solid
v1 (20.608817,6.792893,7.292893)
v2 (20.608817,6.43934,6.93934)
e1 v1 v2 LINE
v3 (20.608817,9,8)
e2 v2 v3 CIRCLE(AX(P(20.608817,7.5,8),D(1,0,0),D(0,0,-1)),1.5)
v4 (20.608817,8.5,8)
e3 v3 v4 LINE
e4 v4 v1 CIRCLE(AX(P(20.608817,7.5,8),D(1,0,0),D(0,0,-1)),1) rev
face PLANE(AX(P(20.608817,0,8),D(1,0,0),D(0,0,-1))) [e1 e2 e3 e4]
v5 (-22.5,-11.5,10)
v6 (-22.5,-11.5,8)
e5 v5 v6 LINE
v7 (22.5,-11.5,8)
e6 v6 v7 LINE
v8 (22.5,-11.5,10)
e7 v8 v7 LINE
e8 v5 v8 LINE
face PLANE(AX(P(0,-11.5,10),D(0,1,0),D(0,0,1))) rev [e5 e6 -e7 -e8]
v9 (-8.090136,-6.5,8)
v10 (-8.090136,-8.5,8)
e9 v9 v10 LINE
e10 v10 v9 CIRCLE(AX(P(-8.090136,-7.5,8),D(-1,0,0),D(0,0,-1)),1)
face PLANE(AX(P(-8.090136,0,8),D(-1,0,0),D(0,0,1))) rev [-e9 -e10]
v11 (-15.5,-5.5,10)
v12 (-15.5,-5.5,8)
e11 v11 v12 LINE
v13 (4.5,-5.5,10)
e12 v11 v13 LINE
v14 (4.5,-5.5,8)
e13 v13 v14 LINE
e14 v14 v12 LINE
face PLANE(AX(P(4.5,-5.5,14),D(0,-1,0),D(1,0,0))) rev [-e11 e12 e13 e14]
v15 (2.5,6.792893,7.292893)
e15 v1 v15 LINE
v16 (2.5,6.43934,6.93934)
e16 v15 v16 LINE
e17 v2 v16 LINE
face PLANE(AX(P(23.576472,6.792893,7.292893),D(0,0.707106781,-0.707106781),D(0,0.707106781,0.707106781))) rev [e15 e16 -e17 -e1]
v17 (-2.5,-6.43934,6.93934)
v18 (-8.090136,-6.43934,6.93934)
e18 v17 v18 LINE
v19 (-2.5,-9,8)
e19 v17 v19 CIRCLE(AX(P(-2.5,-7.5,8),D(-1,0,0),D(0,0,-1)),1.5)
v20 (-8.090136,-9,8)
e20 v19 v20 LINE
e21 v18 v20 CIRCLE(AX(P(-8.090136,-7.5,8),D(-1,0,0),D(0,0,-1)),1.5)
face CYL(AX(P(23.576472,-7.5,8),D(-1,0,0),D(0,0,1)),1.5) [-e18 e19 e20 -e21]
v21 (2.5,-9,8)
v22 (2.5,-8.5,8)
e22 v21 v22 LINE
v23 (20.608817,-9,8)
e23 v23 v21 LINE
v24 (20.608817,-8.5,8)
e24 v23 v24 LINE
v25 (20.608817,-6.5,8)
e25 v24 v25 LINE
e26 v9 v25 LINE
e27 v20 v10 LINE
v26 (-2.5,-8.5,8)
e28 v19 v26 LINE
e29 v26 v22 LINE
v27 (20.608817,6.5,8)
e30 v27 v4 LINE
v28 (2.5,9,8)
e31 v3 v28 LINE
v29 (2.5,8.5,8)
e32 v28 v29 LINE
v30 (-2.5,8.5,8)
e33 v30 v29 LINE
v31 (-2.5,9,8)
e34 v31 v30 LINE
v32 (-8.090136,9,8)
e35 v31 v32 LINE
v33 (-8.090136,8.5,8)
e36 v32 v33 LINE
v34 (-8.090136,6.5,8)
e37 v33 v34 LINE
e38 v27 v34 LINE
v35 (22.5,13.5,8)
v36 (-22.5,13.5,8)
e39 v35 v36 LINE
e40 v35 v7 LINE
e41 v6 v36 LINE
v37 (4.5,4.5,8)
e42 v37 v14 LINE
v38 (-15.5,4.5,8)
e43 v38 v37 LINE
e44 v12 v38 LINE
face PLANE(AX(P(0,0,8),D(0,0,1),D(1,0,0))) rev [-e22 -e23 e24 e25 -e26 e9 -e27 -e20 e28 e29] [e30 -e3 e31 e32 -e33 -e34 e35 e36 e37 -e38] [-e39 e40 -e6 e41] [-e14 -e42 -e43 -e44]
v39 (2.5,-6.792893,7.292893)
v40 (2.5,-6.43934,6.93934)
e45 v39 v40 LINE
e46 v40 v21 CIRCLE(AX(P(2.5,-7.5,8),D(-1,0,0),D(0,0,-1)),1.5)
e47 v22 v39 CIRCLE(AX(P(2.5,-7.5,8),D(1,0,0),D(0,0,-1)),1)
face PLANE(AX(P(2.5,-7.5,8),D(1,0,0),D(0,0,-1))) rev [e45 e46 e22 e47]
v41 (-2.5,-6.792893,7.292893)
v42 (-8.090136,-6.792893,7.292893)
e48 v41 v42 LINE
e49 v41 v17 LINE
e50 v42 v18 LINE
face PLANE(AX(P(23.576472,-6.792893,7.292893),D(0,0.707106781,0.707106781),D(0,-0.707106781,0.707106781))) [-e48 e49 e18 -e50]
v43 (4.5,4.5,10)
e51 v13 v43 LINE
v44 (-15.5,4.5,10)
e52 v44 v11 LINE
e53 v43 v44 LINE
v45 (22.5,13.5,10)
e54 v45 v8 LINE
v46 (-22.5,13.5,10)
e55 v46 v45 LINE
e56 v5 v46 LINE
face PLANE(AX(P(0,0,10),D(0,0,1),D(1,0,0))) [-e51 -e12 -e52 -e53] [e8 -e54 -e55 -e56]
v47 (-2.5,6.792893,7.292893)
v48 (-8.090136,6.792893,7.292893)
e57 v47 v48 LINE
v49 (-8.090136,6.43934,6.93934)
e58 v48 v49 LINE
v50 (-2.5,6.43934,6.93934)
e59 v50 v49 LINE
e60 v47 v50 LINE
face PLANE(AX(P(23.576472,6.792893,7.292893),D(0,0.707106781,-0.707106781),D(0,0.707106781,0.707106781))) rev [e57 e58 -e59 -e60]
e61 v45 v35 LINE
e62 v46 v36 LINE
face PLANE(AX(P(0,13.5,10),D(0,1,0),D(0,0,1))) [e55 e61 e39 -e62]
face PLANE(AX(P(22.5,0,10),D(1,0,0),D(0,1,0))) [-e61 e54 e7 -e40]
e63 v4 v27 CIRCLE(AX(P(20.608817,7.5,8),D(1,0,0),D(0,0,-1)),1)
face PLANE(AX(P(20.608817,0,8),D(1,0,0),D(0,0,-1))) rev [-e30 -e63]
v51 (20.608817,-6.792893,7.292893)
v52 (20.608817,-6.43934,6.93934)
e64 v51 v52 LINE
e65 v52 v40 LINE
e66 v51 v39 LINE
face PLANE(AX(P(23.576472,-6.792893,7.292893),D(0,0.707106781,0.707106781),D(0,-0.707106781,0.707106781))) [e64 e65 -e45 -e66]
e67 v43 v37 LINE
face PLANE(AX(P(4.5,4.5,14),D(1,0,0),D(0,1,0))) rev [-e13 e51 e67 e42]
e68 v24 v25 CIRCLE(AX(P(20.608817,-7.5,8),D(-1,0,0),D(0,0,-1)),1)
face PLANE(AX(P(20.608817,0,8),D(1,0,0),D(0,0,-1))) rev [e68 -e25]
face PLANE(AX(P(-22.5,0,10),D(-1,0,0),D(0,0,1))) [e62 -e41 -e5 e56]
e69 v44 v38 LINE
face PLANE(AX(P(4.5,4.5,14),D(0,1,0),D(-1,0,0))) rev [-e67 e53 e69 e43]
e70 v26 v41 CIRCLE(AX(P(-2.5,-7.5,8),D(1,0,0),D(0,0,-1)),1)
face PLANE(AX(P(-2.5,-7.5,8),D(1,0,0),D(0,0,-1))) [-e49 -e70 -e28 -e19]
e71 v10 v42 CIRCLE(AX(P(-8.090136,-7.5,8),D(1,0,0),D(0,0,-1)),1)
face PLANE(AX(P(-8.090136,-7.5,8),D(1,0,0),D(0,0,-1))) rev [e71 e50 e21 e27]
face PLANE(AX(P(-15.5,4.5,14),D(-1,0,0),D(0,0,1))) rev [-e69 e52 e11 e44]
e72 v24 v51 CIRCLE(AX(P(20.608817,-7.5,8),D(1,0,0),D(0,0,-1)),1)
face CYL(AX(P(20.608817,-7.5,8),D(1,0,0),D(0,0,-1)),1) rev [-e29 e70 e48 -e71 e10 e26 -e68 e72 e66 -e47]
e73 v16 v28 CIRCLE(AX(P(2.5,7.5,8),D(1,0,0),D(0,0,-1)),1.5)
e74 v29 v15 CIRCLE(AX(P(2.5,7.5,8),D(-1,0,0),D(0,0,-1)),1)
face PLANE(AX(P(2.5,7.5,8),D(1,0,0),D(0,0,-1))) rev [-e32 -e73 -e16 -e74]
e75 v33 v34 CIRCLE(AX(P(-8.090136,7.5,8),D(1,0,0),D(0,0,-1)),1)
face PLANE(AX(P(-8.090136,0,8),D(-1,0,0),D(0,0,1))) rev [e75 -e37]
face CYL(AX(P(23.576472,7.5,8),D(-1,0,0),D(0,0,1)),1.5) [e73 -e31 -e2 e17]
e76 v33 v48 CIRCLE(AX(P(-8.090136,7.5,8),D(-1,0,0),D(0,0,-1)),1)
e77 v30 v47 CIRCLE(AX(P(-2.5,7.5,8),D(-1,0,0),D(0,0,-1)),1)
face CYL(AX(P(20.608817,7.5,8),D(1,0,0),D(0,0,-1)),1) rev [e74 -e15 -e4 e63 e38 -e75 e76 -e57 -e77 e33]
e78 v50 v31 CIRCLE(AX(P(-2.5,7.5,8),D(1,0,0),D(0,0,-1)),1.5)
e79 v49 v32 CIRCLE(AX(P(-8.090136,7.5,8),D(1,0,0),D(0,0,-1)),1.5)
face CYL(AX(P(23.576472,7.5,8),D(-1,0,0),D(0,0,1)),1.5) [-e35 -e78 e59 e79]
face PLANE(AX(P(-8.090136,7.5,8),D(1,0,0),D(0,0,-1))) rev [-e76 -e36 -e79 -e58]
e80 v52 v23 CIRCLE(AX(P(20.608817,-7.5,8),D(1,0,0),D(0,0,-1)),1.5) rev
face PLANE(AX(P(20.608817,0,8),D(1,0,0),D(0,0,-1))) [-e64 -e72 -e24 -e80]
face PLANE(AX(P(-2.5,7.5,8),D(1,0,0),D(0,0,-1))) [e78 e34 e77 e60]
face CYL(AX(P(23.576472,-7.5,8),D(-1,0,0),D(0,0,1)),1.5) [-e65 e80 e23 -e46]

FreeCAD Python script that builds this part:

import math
import FreeCAD as App
import Part
import Sketcher
Q = App.Units.Quantity


def faces_at(feature, points):
    """Names of the faces that lie closest to the given points."""
    faces = feature.Shape.Faces
    near = lambda p: min(range(len(faces)), key=lambda i: faces[i].distToShape(Part.Vertex(*p))[0])
    return sorted({f"Face{near(p) + 1}" for p in points})


def add_polygon(sketch, points):
    """Adds a closed chain of lines whose ends are joined by coincident constraints."""
    first, n = sketch.GeometryCount, len(points)
    for a, b in zip(points, points[1:] + points[:1]):
        sketch.addGeometry(Part.LineSegment(App.Vector(*a, 0), App.Vector(*b, 0)), False)
    for i in range(n):
        sketch.addConstraint(Sketcher.Constraint("Coincident", first + i, 2, first + (i + 1) % n, 1))

doc = App.newDocument("Part")
body = doc.addObject("PartDesign::Body", "Body")

# Sketch on XY plane
sketch1 = body.newObject("Sketcher::SketchObject", "Sketch")
sketch1.AttachmentSupport = (doc.getObject("XY_Plane"), [""])
sketch1.MapMode = "FlatFace"
add_polygon(sketch1, [(22, -12), (22, 14), (-22, 14), (-22, -12)])  # lines 0-3
sketch1.addConstraint([
    Sketcher.Constraint("Vertical", 0),
    Sketcher.Constraint("Horizontal", 1),
    Sketcher.Constraint("Vertical", 2),
    Sketcher.Constraint("Horizontal", 3),
    Sketcher.Constraint("DistanceX", 1, 2, 1, 1, Q("45 mm")),
    Sketcher.Constraint("DistanceY", 0, 1, 0, 2, Q("25 mm")),
    Sketcher.Constraint("DistanceX", -1, 1, 0, 2, Q("22.5 mm")),
    Sketcher.Constraint("DistanceY", -1, 1, 0, 2, Q("13.5 mm")),
])
pad1 = body.newObject("PartDesign::Pad", "Pad")
pad1.Profile = sketch1
pad1.Length = 10
doc.recompute()

thickness = body.newObject("PartDesign::Thickness", "Thickness")
thickness.Base = (pad1, faces_at(pad1, [(0, -11.5, 5), (-22.5, 1, 5), (22.5, 1, 5)]))
thickness.Value = 2
thickness.Reversed = True
thickness.Join = "Intersection"

# Sketch on XY plane
sketch2 = body.newObject("Sketcher::SketchObject", "Sketch001")
sketch2.AttachmentSupport = (doc.getObject("XY_Plane"), [""])
sketch2.MapMode = "FlatFace"
add_polygon(sketch2, [(-22, 14), (-22, -12), (22, -12), (22, 14)])  # lines 0-3
sketch2.addConstraint([
    Sketcher.Constraint("Vertical", 0),
    Sketcher.Constraint("Horizontal", 1),
    Sketcher.Constraint("Vertical", 2),
    Sketcher.Constraint("Horizontal", 3),
    Sketcher.Constraint("DistanceX", 1, 1, 1, 2, Q("45 mm")),
    Sketcher.Constraint("DistanceY", 0, 2, 0, 1, Q("25 mm")),
    Sketcher.Constraint("DistanceX", 0, 2, -1, 1, Q("22.5 mm")),
    Sketcher.Constraint("DistanceY", 0, 2, -1, 1, Q("11.5 mm")),
])
pocket1 = body.newObject("PartDesign::Pocket", "Pocket")
pocket1.Profile = sketch2
pocket1.Length = 8
pocket1.Reversed = True

# Sketch on XY plane
sketch3 = body.newObject("Sketcher::SketchObject", "Sketch002")
sketch3.AttachmentSupport = (doc.getObject("XY_Plane"), [""])
sketch3.MapMode = "FlatFace"
sketch3.AttachmentOffset = App.Placement(App.Vector(0, 0, 8), App.Rotation())
add_polygon(sketch3, [(4, 4), (4, -6), (-16, -6), (-16, 4)])  # lines 0-3
sketch3.addConstraint([
    Sketcher.Constraint("Vertical", 0),
    Sketcher.Constraint("Horizontal", 1),
    Sketcher.Constraint("Vertical", 2),
    Sketcher.Constraint("Horizontal", 3),
    Sketcher.Constraint("DistanceX", 1, 2, 1, 1, Q("20 mm")),
    Sketcher.Constraint("DistanceY", 0, 2, 0, 1, Q("10 mm")),
    Sketcher.Constraint("DistanceX", -1, 1, 0, 2, Q("4.5 mm")),
    Sketcher.Constraint("DistanceY", 0, 2, -1, 1, Q("5.5 mm")),
])
pocket2 = body.newObject("PartDesign::Pocket", "Pocket001")
pocket2.Profile = sketch3
pocket2.Length = 6
pocket2.Reversed = True

# Sketch on XY plane
sketch4 = body.newObject("Sketcher::SketchObject", "Sketch003")
sketch4.AttachmentSupport = (doc.getObject("XY_Plane"), [""])
sketch4.MapMode = "FlatFace"
sketch4.AttachmentOffset = App.Placement(App.Vector(0, 0, 8), App.Rotation())
add_polygon(sketch4, [(20.6, 8.5), (20.6, 7.5), (-8.1, 7.5), (-8.1, 8.5)])  # lines 0-3
sketch4.addGeometry(Part.LineSegment(App.Vector(20.6, 7.5, 0), App.Vector(-8.1, 7.5, 0)), True)  # axis
sketch4.addConstraint([
    Sketcher.Constraint("Vertical", 0),
    Sketcher.Constraint("Horizontal", 1),
    Sketcher.Constraint("Vertical", 2),
    Sketcher.Constraint("Horizontal", 3),
    Sketcher.Constraint("Horizontal", 4),
    Sketcher.Constraint("Coincident", 4, 1, 0, 2),
    Sketcher.Constraint("Vertical", 2, 2, 4, 2),
    Sketcher.Constraint("DistanceY", 0, 2, 0, 1, Q("1 mm")),
    Sketcher.Constraint("DistanceY", -1, 1, 0, 2, Q("7.5 mm")),
    Sketcher.Constraint("DistanceX", 1, 2, 1, 1, Q("28.698952 mm")),
    Sketcher.Constraint("DistanceX", -1, 1, 0, 2, Q("20.608817 mm")),
])
groove = body.newObject("PartDesign::Groove", "Groove")
groove.Profile = sketch4
groove.ReferenceAxis = (sketch4, ["Axis0"])
groove.Angle = 360

# Sketch on YZ plane
sketch5 = body.newObject("Sketcher::SketchObject", "Sketch004")
sketch5.AttachmentSupport = (doc.getObject("YZ_Plane"), [""])
sketch5.MapMode = "FlatFace"
sketch5.AttachmentOffset = App.Placement(App.Vector(0, 0, -8.090136), App.Rotation())
sketch5.addGeometry([
    Part.LineSegment(App.Vector(9, 8, 0), App.Vector(8.5, 8, 0)),
    Part.ArcOfCircle(Part.Circle(App.Vector(7.5, 8, 0), App.Vector(0, 0, 1), 1), math.radians(-135), math.radians(0)),
    Part.LineSegment(App.Vector(6.8, 7.3, 0), App.Vector(6.4, 6.9, 0)),
    Part.ArcOfCircle(Part.Circle(App.Vector(7.5, 8, 0), App.Vector(0, 0, 1), 1.5), math.radians(-135), math.radians(0)),
], False)
sketch5.addConstraint([
    Sketcher.Constraint("Coincident", 0, 2, 1, 2),
    Sketcher.Constraint("Coincident", 1, 1, 2, 1),
    Sketcher.Constraint("Coincident", 2, 2, 3, 1),
    Sketcher.Constraint("Coincident", 3, 2, 0, 1),
    Sketcher.Constraint("Horizontal", 0),
    Sketcher.Constraint("Coincident", 3, 3, 1, 3),
    Sketcher.Constraint("Horizontal", 3, 3, 0, 2),
    Sketcher.Constraint("Radius", 1, Q("1 mm")),
    Sketcher.Constraint("Radius", 3, Q("1.5 mm")),
    Sketcher.Constraint("Angle", 2, Q("-135 deg")),
    Sketcher.Constraint("DistanceY", -1, 1, 1, 3, Q("8 mm")),
    Sketcher.Constraint("DistanceX", -1, 1, 3, 2, Q("9 mm")),
    Sketcher.Constraint("DistanceX", -1, 1, 2, 2, Q("6.43934 mm")),
])
pad2 = body.newObject("PartDesign::Pad", "Pad001")
pad2.Profile = sketch5
pad2.Length = 28.698952

# Sketch on YZ plane
sketch6 = body.newObject("Sketcher::SketchObject", "Sketch005")
sketch6.AttachmentSupport = (doc.getObject("YZ_Plane"), [""])
sketch6.MapMode = "FlatFace"
sketch6.addGeometry([
    Part.LineSegment(App.Vector(6.8, 7.3, 0), App.Vector(6.4, 6.9, 0)),
    Part.ArcOfCircle(Part.Circle(App.Vector(7.5, 8, 0), App.Vector(0, 0, 1), 1.5), math.radians(-135), math.radians(0)),
    Part.LineSegment(App.Vector(9, 8, 0), App.Vector(8.5, 8, 0)),
    Part.ArcOfCircle(Part.Circle(App.Vector(7.5, 8, 0), App.Vector(0, 0, 1), 1), math.radians(-135), math.radians(0)),
], False)
sketch6.addConstraint([
    Sketcher.Constraint("Coincident", 0, 2, 1, 1),
    Sketcher.Constraint("Coincident", 1, 2, 2, 1),
    Sketcher.Constraint("Coincident", 2, 2, 3, 2),
    Sketcher.Constraint("Coincident", 3, 1, 0, 1),
    Sketcher.Constraint("Horizontal", 2),
    Sketcher.Constraint("Coincident", 3, 3, 1, 3),
    Sketcher.Constraint("Horizontal", 3, 3, 1, 2),
    Sketcher.Constraint("Radius", 3, Q("1 mm")),
    Sketcher.Constraint("Radius", 1, Q("1.5 mm")),
    Sketcher.Constraint("Angle", 0, Q("-135 deg")),
    Sketcher.Constraint("DistanceY", -1, 1, 1, 3, Q("8 mm")),
    Sketcher.Constraint("DistanceX", -1, 1, 1, 2, Q("9 mm")),
    Sketcher.Constraint("DistanceX", -1, 1, 0, 2, Q("6.43934 mm")),
])
pocket3 = body.newObject("PartDesign::Pocket", "Pocket002")
pocket3.Profile = sketch6
pocket3.Length = 5
pocket3.Midplane = True
doc.recompute()

mirrored = body.newObject("PartDesign::Mirrored", "Mirrored")
mirrored.Originals = [groove, pad2, pocket3]
mirrored.MirrorPlane = (doc.getObject("XZ_Plane"), [""])
body.Tip = mirrored

doc.recompute()
